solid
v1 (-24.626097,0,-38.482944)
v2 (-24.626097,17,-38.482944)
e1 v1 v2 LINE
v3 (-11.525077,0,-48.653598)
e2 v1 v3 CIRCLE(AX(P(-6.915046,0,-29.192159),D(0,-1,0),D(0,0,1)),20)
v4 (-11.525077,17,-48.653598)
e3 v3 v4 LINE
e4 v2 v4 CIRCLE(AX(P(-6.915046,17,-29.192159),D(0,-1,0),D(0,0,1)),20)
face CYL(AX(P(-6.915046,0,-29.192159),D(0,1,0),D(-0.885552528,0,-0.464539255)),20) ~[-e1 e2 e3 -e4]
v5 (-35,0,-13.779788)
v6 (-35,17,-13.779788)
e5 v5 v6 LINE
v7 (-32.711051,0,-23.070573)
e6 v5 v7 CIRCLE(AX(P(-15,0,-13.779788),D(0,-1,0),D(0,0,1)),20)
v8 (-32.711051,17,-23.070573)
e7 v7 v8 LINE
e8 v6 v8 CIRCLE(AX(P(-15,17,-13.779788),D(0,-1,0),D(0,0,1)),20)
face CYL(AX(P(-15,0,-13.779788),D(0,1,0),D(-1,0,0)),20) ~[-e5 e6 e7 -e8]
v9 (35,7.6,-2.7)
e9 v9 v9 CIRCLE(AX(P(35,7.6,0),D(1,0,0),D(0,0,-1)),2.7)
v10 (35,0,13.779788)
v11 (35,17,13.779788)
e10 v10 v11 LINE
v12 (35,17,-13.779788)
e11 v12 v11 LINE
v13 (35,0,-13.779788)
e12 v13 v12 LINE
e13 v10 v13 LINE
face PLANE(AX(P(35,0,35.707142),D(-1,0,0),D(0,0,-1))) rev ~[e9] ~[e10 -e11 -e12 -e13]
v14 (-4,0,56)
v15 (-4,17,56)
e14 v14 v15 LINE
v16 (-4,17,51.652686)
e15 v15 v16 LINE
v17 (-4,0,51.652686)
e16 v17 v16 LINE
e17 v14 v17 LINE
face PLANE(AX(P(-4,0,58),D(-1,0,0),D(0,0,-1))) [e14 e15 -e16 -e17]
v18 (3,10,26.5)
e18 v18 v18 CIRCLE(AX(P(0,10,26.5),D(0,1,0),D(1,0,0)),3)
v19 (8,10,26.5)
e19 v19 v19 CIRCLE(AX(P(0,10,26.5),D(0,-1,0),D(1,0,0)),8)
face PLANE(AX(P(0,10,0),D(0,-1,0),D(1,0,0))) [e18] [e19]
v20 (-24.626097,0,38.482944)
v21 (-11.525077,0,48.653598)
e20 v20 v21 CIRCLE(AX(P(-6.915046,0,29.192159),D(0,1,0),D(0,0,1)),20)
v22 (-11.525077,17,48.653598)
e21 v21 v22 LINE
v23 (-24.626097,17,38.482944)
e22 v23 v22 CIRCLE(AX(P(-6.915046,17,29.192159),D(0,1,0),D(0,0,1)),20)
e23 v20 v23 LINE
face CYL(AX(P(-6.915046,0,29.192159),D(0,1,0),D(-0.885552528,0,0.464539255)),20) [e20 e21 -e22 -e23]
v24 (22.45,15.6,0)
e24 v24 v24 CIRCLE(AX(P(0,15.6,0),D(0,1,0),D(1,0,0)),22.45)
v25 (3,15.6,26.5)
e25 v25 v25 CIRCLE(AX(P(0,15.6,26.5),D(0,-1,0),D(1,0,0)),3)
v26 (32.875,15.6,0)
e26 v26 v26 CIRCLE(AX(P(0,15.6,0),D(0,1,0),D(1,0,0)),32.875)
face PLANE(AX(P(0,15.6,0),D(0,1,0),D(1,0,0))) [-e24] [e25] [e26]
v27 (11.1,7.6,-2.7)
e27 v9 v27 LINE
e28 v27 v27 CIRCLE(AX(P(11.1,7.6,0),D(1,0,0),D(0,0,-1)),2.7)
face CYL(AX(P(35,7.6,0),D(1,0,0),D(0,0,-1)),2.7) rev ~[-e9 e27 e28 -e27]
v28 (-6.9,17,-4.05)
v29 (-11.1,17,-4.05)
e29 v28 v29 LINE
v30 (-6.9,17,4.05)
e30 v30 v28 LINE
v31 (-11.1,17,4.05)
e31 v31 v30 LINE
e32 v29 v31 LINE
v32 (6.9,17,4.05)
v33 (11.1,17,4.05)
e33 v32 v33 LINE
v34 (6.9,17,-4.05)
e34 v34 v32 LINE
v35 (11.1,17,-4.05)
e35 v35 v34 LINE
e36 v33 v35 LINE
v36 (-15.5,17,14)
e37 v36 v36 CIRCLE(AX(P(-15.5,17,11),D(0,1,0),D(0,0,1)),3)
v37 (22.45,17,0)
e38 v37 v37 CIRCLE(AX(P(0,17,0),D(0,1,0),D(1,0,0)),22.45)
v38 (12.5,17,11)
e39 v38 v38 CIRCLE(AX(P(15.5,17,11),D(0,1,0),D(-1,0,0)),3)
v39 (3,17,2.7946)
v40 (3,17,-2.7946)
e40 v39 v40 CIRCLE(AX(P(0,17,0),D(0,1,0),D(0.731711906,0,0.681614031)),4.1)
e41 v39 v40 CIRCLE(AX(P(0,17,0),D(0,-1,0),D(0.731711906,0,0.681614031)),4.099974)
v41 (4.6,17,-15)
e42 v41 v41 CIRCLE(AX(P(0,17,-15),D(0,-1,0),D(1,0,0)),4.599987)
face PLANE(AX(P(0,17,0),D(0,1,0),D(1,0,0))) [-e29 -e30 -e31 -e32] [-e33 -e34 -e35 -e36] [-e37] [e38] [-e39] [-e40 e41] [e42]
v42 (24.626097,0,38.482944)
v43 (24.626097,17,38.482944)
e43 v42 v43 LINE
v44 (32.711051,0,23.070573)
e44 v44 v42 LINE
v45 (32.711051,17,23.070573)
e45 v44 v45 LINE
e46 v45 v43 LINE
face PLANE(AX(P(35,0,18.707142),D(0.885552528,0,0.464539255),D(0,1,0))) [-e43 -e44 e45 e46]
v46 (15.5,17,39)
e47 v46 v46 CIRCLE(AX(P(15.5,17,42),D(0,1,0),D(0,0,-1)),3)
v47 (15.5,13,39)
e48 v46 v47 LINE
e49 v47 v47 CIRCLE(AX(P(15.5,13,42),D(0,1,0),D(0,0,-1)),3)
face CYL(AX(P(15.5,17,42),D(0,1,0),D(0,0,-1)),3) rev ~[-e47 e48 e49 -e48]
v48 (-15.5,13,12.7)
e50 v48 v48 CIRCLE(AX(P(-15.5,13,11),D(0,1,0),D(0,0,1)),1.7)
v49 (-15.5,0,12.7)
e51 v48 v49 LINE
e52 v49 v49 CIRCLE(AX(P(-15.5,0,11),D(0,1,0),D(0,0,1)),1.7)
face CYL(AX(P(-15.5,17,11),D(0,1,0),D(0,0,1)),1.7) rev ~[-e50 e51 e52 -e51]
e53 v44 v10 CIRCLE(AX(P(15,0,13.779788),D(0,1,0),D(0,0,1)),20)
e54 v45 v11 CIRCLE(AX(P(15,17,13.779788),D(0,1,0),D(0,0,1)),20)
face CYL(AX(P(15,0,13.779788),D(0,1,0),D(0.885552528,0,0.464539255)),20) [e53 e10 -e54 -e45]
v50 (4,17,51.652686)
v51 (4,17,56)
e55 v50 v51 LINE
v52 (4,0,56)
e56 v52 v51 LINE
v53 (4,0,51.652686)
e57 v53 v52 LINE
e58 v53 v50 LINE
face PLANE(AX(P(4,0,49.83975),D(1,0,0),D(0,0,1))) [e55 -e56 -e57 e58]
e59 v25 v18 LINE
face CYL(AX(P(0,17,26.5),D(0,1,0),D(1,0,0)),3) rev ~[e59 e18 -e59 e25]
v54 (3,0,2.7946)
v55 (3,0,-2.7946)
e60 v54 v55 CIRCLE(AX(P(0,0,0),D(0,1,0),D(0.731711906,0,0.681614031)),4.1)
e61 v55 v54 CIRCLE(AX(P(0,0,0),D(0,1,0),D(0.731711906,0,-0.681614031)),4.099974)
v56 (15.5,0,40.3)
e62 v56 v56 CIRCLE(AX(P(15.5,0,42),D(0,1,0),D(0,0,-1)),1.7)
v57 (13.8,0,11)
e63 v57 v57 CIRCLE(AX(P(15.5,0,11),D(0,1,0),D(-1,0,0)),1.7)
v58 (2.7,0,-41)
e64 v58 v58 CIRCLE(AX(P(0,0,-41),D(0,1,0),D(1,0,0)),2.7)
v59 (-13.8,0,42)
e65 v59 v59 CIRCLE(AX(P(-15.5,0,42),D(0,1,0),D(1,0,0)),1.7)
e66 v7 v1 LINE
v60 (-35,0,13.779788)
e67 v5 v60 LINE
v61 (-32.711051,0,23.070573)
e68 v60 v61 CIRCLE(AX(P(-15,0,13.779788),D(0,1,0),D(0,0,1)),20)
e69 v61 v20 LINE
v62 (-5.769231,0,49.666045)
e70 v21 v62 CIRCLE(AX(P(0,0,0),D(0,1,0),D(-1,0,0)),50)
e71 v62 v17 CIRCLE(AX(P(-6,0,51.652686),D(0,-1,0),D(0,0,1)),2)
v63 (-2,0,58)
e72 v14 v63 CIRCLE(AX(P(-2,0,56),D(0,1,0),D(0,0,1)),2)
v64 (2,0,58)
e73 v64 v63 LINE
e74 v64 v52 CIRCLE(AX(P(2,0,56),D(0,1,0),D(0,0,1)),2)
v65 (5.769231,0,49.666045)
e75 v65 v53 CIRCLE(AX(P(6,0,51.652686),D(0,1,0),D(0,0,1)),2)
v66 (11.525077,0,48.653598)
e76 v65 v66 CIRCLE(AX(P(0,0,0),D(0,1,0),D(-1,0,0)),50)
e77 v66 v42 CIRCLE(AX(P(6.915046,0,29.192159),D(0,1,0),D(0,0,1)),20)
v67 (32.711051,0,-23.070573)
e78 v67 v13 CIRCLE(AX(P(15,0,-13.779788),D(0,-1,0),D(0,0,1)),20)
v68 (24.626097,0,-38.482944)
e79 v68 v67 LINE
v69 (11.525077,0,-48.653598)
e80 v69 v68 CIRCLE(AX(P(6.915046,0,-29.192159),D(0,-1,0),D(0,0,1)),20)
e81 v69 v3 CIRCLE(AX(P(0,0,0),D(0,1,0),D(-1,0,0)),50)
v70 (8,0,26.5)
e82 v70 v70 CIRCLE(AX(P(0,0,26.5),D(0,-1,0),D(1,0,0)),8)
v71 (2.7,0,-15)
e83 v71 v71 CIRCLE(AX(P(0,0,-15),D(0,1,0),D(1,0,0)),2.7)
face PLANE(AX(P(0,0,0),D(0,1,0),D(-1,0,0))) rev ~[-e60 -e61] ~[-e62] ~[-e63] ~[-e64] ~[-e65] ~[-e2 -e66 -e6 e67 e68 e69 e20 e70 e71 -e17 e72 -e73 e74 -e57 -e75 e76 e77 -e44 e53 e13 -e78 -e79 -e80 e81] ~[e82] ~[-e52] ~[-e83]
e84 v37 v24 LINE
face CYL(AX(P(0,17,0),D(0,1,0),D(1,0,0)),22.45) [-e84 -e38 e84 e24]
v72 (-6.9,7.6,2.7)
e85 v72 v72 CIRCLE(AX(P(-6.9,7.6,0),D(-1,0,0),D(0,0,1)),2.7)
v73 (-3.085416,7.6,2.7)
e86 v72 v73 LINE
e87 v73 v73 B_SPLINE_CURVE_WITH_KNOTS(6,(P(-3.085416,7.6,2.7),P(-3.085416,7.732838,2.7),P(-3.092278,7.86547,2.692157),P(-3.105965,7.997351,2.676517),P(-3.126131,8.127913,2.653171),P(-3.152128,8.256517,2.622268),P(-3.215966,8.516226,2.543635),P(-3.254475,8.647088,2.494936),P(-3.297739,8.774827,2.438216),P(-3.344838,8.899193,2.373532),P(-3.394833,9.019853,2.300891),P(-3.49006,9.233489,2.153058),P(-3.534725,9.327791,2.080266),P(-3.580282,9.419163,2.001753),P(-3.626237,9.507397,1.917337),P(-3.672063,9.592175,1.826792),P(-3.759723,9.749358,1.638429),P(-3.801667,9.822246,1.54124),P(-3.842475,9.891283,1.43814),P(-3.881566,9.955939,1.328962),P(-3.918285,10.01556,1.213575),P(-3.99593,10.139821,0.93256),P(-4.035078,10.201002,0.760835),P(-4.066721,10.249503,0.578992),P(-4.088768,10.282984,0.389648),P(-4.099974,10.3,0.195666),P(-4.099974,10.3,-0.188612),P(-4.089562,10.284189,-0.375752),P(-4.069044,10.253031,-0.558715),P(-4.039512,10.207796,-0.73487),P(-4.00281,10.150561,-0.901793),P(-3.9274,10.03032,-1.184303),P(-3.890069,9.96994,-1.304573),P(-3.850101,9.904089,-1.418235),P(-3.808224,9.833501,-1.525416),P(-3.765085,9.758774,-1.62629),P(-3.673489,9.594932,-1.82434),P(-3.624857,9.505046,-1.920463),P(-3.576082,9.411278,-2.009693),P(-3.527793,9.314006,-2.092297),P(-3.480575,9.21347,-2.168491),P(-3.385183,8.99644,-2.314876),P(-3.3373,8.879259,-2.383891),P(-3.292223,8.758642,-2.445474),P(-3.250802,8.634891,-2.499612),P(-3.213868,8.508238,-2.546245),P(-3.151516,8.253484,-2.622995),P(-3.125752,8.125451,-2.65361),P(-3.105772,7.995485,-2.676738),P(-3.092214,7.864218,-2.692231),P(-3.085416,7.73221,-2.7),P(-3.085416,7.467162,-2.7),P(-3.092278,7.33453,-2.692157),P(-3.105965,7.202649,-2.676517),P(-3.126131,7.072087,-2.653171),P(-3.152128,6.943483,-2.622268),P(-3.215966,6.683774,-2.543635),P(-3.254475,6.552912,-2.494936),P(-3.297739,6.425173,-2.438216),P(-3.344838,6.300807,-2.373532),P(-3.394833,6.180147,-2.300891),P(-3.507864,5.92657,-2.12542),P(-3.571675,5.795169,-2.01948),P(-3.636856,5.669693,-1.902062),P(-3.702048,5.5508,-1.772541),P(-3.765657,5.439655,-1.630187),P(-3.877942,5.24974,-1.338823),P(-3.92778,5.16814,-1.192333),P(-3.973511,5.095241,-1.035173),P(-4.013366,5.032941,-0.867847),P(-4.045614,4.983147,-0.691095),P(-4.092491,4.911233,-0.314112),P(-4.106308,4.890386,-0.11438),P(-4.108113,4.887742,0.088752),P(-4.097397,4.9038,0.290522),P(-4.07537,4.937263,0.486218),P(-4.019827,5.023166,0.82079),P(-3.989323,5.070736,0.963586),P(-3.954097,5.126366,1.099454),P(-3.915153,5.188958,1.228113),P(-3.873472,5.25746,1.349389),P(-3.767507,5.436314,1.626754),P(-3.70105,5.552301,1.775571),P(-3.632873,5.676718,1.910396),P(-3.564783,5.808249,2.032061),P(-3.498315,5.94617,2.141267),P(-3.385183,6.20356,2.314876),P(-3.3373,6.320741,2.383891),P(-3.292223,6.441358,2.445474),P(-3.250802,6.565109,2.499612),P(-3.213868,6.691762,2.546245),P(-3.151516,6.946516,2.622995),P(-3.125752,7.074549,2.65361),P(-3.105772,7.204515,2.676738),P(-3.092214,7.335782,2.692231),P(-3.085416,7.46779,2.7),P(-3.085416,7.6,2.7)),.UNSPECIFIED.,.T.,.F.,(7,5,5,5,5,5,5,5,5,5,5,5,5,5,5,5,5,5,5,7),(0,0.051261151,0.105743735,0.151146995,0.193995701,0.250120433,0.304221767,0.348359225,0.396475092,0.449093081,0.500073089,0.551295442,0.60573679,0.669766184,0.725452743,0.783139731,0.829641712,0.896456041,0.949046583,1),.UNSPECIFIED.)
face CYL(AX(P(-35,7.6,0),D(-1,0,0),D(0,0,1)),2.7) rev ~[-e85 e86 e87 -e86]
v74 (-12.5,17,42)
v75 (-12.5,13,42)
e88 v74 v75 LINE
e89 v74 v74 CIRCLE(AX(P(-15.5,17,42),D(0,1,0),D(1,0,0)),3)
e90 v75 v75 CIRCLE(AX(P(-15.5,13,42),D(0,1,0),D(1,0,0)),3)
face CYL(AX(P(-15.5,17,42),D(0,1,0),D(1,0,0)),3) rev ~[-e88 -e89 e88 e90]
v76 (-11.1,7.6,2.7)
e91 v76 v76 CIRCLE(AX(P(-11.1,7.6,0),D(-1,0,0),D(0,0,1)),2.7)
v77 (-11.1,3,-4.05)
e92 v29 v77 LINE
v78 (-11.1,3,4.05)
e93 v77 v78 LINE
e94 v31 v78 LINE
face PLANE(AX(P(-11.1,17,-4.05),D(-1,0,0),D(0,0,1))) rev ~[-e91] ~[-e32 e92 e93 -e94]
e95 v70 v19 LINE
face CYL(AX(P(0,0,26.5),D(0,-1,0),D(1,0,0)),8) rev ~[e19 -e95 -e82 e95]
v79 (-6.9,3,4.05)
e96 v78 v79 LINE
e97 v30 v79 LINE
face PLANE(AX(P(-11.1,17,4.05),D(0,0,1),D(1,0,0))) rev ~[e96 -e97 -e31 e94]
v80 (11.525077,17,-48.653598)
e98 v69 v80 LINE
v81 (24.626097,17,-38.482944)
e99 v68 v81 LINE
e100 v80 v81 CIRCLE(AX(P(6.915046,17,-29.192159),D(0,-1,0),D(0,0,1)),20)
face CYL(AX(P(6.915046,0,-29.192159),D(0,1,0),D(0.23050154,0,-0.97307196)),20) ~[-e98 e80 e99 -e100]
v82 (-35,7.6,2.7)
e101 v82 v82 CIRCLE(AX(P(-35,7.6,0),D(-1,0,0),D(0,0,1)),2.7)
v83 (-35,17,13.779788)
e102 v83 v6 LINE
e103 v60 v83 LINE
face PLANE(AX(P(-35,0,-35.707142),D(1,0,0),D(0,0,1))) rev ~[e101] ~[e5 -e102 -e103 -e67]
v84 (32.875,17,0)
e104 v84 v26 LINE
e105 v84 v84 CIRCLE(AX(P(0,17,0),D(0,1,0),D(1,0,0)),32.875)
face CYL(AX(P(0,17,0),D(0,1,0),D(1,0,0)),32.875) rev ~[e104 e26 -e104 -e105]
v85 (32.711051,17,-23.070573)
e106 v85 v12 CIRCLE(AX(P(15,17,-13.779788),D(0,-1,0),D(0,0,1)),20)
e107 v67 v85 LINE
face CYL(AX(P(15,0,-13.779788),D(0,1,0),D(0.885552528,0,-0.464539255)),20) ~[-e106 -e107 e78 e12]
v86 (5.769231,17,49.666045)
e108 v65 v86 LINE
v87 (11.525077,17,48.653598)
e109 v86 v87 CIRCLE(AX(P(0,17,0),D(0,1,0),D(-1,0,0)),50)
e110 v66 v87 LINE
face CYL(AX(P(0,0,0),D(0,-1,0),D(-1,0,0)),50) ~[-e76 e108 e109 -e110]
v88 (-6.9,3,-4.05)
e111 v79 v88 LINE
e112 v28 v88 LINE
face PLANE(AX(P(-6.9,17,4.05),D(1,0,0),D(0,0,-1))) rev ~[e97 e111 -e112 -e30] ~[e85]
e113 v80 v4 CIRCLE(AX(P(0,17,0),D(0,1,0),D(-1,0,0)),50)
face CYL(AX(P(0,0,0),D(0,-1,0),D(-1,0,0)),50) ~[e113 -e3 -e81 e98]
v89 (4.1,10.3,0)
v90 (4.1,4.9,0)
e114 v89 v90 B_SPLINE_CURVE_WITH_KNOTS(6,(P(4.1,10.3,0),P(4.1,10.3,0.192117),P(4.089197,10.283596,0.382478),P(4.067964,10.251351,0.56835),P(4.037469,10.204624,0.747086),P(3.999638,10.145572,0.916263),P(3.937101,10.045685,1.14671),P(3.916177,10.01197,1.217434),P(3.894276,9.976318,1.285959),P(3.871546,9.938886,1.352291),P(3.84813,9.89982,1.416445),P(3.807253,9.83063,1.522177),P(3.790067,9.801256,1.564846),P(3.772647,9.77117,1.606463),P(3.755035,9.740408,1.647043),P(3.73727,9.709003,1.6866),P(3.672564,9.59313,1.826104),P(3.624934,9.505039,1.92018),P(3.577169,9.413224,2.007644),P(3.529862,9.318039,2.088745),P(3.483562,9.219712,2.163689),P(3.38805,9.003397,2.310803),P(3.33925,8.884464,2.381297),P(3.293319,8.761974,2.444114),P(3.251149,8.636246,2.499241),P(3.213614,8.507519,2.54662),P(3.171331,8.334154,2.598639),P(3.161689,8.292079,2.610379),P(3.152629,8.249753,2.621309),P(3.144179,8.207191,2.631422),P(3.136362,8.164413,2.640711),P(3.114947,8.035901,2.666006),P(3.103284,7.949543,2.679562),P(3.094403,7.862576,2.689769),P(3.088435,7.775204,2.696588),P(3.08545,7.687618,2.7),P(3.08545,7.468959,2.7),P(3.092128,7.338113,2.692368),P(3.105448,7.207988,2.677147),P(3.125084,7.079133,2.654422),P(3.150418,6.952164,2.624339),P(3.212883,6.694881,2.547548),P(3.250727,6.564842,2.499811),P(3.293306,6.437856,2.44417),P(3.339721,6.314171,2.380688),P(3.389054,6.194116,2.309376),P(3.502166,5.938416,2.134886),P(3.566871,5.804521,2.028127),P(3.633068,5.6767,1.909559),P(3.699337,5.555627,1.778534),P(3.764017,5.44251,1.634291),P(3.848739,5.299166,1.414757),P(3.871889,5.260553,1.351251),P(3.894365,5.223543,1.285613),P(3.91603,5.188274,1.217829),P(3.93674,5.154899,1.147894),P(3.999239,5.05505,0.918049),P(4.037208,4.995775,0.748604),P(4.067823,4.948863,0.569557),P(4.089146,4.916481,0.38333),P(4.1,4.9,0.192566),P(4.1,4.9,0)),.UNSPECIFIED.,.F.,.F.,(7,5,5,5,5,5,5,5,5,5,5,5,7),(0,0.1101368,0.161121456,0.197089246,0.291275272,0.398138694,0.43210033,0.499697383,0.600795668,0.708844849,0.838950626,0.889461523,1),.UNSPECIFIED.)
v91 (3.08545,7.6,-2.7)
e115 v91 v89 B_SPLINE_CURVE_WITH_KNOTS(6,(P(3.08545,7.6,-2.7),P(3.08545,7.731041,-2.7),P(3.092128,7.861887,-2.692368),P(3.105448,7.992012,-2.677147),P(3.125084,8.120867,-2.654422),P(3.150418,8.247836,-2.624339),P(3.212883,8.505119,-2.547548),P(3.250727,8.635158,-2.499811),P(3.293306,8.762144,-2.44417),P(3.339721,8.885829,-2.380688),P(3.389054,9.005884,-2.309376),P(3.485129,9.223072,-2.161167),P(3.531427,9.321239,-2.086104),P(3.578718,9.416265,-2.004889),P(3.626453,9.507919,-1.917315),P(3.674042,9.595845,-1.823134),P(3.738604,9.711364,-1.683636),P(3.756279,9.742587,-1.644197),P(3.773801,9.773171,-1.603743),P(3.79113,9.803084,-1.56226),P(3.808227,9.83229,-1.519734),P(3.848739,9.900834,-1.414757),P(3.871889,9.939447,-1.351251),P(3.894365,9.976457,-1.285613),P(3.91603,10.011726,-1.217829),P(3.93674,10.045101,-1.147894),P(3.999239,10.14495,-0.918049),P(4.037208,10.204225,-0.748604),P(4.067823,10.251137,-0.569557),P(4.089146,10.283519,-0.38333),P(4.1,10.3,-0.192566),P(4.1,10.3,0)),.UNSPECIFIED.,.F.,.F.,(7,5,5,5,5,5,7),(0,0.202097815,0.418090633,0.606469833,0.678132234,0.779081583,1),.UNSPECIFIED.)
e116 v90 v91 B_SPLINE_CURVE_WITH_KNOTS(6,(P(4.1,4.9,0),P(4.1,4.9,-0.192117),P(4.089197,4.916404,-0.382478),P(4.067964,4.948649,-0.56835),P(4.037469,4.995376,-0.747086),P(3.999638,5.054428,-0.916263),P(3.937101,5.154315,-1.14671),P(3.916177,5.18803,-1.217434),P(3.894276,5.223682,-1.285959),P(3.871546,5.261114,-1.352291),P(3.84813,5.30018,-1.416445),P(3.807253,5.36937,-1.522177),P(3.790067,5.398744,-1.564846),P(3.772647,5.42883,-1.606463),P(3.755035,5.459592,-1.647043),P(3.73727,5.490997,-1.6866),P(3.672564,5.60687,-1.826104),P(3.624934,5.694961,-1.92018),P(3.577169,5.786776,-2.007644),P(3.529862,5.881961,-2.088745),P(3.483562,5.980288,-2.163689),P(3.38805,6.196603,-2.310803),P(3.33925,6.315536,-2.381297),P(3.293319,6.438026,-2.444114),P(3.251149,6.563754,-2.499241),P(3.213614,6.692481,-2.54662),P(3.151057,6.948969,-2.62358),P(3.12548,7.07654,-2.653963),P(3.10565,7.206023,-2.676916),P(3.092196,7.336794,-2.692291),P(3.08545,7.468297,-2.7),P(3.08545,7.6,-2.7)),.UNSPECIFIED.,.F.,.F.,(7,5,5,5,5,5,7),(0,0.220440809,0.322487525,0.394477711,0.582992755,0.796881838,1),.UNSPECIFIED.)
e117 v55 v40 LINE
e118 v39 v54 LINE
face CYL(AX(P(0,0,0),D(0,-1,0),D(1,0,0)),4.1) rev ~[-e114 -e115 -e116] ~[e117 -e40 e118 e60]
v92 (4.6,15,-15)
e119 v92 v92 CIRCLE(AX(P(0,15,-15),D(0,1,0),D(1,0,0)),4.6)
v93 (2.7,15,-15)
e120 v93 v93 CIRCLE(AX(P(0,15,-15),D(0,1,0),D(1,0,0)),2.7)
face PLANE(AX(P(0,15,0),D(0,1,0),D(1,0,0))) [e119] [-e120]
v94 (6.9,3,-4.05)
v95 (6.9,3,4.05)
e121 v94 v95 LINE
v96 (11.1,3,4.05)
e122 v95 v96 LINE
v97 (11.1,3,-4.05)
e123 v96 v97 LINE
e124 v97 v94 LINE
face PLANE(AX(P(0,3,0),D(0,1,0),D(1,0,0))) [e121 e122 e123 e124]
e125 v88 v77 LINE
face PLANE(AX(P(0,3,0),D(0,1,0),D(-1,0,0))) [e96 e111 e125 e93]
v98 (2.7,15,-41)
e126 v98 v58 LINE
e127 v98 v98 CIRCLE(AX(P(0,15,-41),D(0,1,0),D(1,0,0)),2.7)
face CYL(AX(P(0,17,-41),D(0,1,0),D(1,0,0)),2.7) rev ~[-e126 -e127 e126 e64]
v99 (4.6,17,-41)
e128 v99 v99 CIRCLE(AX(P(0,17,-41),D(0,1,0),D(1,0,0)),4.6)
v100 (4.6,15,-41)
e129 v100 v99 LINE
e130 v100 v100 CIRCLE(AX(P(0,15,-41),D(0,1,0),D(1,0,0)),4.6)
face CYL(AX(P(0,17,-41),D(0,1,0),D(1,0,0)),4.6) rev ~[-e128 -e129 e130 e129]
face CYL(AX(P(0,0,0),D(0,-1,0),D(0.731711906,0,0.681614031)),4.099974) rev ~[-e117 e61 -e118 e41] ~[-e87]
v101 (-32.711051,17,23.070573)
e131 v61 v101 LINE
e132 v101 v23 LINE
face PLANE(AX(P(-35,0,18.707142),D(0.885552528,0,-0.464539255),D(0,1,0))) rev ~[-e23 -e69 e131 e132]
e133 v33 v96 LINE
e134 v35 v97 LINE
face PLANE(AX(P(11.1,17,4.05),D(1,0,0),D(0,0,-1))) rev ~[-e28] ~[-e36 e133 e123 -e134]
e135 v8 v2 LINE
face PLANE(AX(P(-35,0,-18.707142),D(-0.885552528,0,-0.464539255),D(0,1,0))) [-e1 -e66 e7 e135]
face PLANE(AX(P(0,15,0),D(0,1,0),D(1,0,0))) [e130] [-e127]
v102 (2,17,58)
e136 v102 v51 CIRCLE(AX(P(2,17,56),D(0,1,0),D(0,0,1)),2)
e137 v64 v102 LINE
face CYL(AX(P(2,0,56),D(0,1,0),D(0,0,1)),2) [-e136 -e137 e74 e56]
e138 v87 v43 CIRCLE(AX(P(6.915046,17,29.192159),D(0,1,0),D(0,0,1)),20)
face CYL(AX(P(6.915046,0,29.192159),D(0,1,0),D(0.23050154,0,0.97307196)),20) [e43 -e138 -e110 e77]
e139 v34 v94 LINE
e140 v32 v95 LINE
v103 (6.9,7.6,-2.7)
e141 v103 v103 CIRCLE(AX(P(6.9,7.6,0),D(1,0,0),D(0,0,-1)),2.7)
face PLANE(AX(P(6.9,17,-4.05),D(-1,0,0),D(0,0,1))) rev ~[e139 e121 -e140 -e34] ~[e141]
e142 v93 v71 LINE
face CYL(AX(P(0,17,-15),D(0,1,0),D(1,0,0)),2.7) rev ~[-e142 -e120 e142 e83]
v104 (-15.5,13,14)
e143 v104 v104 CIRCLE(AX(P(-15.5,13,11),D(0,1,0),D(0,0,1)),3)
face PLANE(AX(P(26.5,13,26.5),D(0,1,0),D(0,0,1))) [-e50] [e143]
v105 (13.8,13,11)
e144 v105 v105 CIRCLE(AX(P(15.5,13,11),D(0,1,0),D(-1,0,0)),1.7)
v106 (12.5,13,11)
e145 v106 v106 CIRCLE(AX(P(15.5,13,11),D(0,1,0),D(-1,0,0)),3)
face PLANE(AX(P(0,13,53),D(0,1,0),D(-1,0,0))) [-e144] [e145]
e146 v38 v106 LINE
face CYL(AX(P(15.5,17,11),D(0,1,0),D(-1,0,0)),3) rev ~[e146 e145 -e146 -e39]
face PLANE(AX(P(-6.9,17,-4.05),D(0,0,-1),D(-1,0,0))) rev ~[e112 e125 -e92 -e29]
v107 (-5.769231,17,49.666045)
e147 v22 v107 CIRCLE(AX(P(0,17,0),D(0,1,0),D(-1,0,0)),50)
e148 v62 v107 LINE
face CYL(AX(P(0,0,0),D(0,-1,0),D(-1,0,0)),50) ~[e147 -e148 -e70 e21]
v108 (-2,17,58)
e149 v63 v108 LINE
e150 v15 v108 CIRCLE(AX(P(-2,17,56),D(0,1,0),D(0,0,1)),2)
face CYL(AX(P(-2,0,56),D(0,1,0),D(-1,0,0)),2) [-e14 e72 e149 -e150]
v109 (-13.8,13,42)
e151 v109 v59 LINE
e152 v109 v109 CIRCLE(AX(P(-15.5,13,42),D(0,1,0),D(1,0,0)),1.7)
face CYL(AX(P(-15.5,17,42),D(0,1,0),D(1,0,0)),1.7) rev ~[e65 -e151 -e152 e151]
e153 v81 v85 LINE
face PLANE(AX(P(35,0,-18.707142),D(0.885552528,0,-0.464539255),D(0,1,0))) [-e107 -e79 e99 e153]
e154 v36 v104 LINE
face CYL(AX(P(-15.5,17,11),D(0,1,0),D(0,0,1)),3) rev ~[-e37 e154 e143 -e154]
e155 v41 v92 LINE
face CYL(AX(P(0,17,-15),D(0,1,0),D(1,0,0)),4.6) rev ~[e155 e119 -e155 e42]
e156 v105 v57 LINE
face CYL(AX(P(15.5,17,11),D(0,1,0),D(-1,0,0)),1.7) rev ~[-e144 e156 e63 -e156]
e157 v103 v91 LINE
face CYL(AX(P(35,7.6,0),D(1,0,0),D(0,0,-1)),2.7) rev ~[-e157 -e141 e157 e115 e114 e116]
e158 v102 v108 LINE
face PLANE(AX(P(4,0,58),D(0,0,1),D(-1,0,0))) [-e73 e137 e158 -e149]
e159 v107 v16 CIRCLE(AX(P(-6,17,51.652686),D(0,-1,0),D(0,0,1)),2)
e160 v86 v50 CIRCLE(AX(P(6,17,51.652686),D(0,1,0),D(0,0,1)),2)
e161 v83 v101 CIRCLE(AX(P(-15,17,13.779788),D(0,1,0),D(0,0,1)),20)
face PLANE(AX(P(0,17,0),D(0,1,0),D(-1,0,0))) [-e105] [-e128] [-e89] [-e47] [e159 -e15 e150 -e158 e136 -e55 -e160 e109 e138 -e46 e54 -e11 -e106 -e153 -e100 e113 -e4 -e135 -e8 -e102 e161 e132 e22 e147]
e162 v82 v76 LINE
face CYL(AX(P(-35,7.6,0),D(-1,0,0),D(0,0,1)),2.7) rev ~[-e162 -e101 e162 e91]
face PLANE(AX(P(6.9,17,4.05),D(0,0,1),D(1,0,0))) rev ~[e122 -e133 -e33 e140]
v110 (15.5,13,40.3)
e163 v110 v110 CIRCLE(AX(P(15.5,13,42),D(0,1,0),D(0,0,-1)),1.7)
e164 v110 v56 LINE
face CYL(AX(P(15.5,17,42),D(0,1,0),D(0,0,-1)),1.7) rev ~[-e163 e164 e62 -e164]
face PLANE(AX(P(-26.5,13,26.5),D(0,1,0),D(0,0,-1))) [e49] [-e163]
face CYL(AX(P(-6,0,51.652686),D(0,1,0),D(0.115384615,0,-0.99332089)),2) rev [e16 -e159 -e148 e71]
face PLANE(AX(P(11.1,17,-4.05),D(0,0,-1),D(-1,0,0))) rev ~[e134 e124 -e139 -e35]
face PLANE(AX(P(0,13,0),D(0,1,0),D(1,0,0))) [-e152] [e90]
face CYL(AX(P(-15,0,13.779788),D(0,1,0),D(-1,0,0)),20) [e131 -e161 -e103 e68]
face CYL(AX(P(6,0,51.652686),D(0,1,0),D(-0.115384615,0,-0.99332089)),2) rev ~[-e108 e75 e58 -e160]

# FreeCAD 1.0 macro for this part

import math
import FreeCAD as App
import Part
import Sketcher
from FreeCAD import Vector
Q = App.Units.Quantity


def edges_at(feature, points):
    """Names of the edges that pass closest to the given points."""
    edges = feature.Shape.Edges
    near = lambda p: min(range(len(edges)), key=lambda i: edges[i].distToShape(Part.Vertex(*p))[0])
    return sorted({f"Edge{near(p) + 1}" for p in points})


def add_polygon(sketch, points):
    """Adds a closed chain of lines whose ends are joined by coincident constraints."""
    first, n = sketch.GeometryCount, len(points)
    for a, b in zip(points, points[1:] + points[:1]):
        sketch.addGeometry(Part.LineSegment(App.Vector(*a, 0), App.Vector(*b, 0)), False)
    for i in range(n):
        sketch.addConstraint(Sketcher.Constraint("Coincident", first + i, 2, first + (i + 1) % n, 1))

doc = App.newDocument("Part")
body = doc.addObject("PartDesign::Body", "Body")

# Sketch on XZ plane
sketch1 = doc.addObject("Sketcher::SketchObject", "Sketch")
body.addObject(sketch1)
sketch1.AttachmentSupport = (doc.XZ_Plane, [""])
sketch1.MapMode = "FlatFace"
sketch1.addGeometry(Part.Circle(Vector(0, 0, 0), Vector(0, 0, 1), 50), False)
sketch1.addConstraint([
    Sketcher.Constraint("Coincident", 0, 3, -1, 1),
    Sketcher.Constraint("Diameter", 0, Q("100 mm")),
])
pad1 = doc.addObject("PartDesign::Pad", "Pad")
body.addObject(pad1)
pad1.Profile = sketch1
pad1.Length = 17
pad1.Reversed = True

# Sketch on XZ plane
sketch2 = doc.addObject("Sketcher::SketchObject", "Sketch001")
body.addObject(sketch2)
sketch2.AttachmentSupport = (doc.XZ_Plane, [""])
sketch2.MapMode = "FlatFace"
sketch2.AttachmentOffset = App.Placement(Vector(0, 0, -17), App.Rotation())
sketch2.addGeometry([
    Part.Circle(Vector(0, 0, 0), Vector(0, 0, 1), 33),
    Part.Circle(Vector(0, 0, 0), Vector(0, 0, 1), 22),
], False)
sketch2.addConstraint([
    Sketcher.Constraint("Coincident", 0, 3, -1, 1),
    Sketcher.Constraint("Coincident", 1, 3, -1, 1),
    Sketcher.Constraint("Diameter", 1, Q("44.9 mm")),
    Sketcher.Constraint("Diameter", 0, Q("65.75 mm")),
])
pocket1 = doc.addObject("PartDesign::Pocket", "Pocket")
body.addObject(pocket1)
pocket1.Profile = sketch2
pocket1.Length = 1.4
pocket1.Reversed = True

# Sketch on XZ plane
sketch3 = doc.addObject("Sketcher::SketchObject", "Sketch002")
body.addObject(sketch3)
sketch3.AttachmentSupport = (doc.XZ_Plane, [""])
sketch3.MapMode = "FlatFace"
sketch3.AttachmentOffset = App.Placement(Vector(0, 0, -17), App.Rotation())
sketch3.addGeometry(Part.Circle(Vector(0, 0, 0), Vector(0, 0, 1), 22), False)
sketch3.addConstraint([
    Sketcher.Constraint("Coincident", 0, 3, -1, 1),
    Sketcher.Constraint("Diameter", 0, Q("44.9 mm")),
])
pad2 = doc.addObject("PartDesign::Pad", "Pad001")
body.addObject(pad2)
pad2.Profile = sketch3
pad2.Length = 1
pad2.Reversed = True

# Sketch on XZ plane
sketch4 = doc.addObject("Sketcher::SketchObject", "Sketch003")
body.addObject(sketch4)
sketch4.AttachmentSupport = (doc.XZ_Plane, [""])
sketch4.MapMode = "FlatFace"
sketch4.AttachmentOffset = App.Placement(Vector(0, 0, -18), App.Rotation())
sketch4.addGeometry([
    Part.LineSegment(Vector(2.9, 2.8, 0), Vector(2.9, -2.8, 0)),
    Part.ArcOfCircle(Part.Circle(Vector(0, 0, 0), Vector(0, 0, 1), 4), math.radians(44), math.radians(316)),
], False)
sketch4.addConstraint([
    Sketcher.Constraint("Coincident", 0, 1, 1, 1),
    Sketcher.Constraint("Coincident", 1, 2, 0, 2),
    Sketcher.Constraint("Vertical", 0),
    Sketcher.Constraint("Coincident", 1, 3, -1, 1),
    Sketcher.Constraint("Radius", 1, Q("4 mm")),
    Sketcher.Constraint("DistanceX", -1, 1, 0, 1, Q("2.9 mm")),
])
pocket2 = doc.addObject("PartDesign::Pocket", "Pocket001")
body.addObject(pocket2)
pocket2.Profile = sketch4
pocket2.Type = "ThroughAll"
pocket2.Reversed = True

# Sketch on XZ plane
sketch5 = doc.addObject("Sketcher::SketchObject", "Sketch004")
body.addObject(sketch5)
sketch5.AttachmentSupport = (doc.XZ_Plane, [""])
sketch5.MapMode = "FlatFace"
sketch5.AttachmentOffset = App.Placement(Vector(0, 0, -18), App.Rotation())
sketch5.addGeometry([
    Part.LineSegment(Vector(3, 2.8, 0), Vector(3, -2.8, 0)),
    Part.ArcOfCircle(Part.Circle(Vector(0, 0, 0), Vector(0, 0, 1), 4.1), math.radians(43), math.radians(317)),
], False)
sketch5.addConstraint([
    Sketcher.Constraint("Coincident", 0, 1, 1, 1),
    Sketcher.Constraint("Coincident", 1, 2, 0, 2),
    Sketcher.Constraint("Vertical", 0),
    Sketcher.Constraint("Coincident", 1, 3, -1, 1),
    Sketcher.Constraint("Radius", 1, Q("4.1 mm")),
    Sketcher.Constraint("DistanceX", -1, 1, 0, 1, Q("3 mm")),
])
pocket3 = doc.addObject("PartDesign::Pocket", "Pocket002")
body.addObject(pocket3)
pocket3.Profile = sketch5
pocket3.Type = "ThroughAll"
pocket3.Reversed = True

# Sketch on XZ plane
sketch6 = doc.addObject("Sketcher::SketchObject", "Sketch005")
body.addObject(sketch6)
sketch6.AttachmentSupport = (doc.XZ_Plane, [""])
sketch6.MapMode = "FlatFace"
sketch6.addGeometry([
    Part.LineSegment(Vector(-35, -36, 0), Vector(-35, 36, 0)),
    Part.ArcOfCircle(Part.Circle(Vector(0, 0, 0), Vector(0, 0, 1), 50), math.radians(134), math.radians(226)),
    Part.ArcOfCircle(Part.Circle(Vector(0, 0, 0), Vector(0, 0, 1), 50), math.radians(-46), math.radians(46)),
    Part.LineSegment(Vector(35, 36, 0), Vector(35, -36, 0)),
], False)
sketch6.addConstraint([
    Sketcher.Constraint("Coincident", 0, 1, 1, 2),
    Sketcher.Constraint("Coincident", 1, 1, 0, 2),
    Sketcher.Constraint("Coincident", 2, 1, 3, 2),
    Sketcher.Constraint("Coincident", 3, 1, 2, 2),
    Sketcher.Constraint("Vertical", 0),
    Sketcher.Constraint("Vertical", 3),
    Sketcher.Constraint("Coincident", 1, 3, -1, 1),
    Sketcher.Constraint("Coincident", 2, 3, -1, 1),
    Sketcher.Constraint("Equal", 1, 2),
    Sketcher.Constraint("Horizontal", 0, 1, 2, 1),
    Sketcher.Constraint("Radius", 1, Q("50 mm")),
    Sketcher.Constraint("DistanceX", 0, 1, 2, 1, Q("70 mm")),
])
pocket4 = doc.addObject("PartDesign::Pocket", "Pocket003")
body.addObject(pocket4)
pocket4.Profile = sketch6
pocket4.Type = "ThroughAll"
doc.recompute()

chamfer = doc.addObject("PartDesign::Chamfer", "Chamfer")
body.addObject(chamfer)
chamfer.Base = (pocket4, edges_at(pocket4, [
    (-35, 8.5, 35.707),
    (-35, 8.5, -35.707),
    (35, 8.5, -35.707),
    (35, 8.5, 35.707),
]))
chamfer.Size = 17
doc.recompute()

fillet = doc.addObject("PartDesign::Fillet", "Fillet")
body.addObject(fillet)
fillet.Base = (chamfer, edges_at(chamfer, [
    (-21.013, 8.5, -45.37),
    (-21.013, 8.5, 45.37),
    (-35, 8.5, -18.707),
    (-35, 8.5, 18.707),
    (21.013, 8.5, -45.37),
    (21.013, 8.5, 45.37),
    (35, 8.5, -18.707),
    (35, 8.5, 18.707),
]))
fillet.Radius = 20

# Sketch on XZ plane
sketch7 = doc.addObject("Sketcher::SketchObject", "Sketch006")
body.addObject(sketch7)
sketch7.AttachmentSupport = (doc.XZ_Plane, [""])
sketch7.MapMode = "FlatFace"
sketch7.AttachmentOffset = App.Placement(Vector(0, 0, -17), App.Rotation())
sketch7.addGeometry([
    Part.Circle(Vector(0, -41, 0), Vector(0, 0, 1), 2.7),
    Part.Circle(Vector(0, -15, 0), Vector(0, 0, 1), 2.7),
    Part.Circle(Vector(0, 15, 0), Vector(0, 0, 1), 2.7),
], False)
sketch7.addConstraint([
    Sketcher.Constraint("Equal", 0, 1),
    Sketcher.Constraint("Equal", 1, 2),
    Sketcher.Constraint("Symmetric", 1, 3, 2, 3, -1, 1),
    Sketcher.Constraint("PointOnObject", 0, 3, -2),
    Sketcher.Constraint("PointOnObject", 1, 3, -2),
    Sketcher.Constraint("Diameter", 0, Q("5.4 mm")),
    Sketcher.Constraint("DistanceY", 1, 3, -1, 1, Q("15 mm")),
    Sketcher.Constraint("DistanceY", 0, 3, 1, 3, Q("26 mm")),
])
pocket5 = doc.addObject("PartDesign::Pocket", "Pocket004")
body.addObject(pocket5)
pocket5.Profile = sketch7
pocket5.Type = "ThroughAll"
pocket5.Midplane = True

# Sketch on XZ plane
sketch8 = doc.addObject("Sketcher::SketchObject", "Sketch007")
body.addObject(sketch8)
sketch8.AttachmentSupport = (doc.XZ_Plane, [""])
sketch8.MapMode = "FlatFace"
sketch8.AttachmentOffset = App.Placement(Vector(0, 0, -17), App.Rotation())
sketch8.addGeometry([
    Part.Circle(Vector(0, -41, 0), Vector(0, 0, 1), 4.6),
    Part.Circle(Vector(0, -15, 0), Vector(0, 0, 1), 4.6),
    Part.Circle(Vector(0, -15, 0), Vector(0, 0, 1), 2.7),
    Part.Circle(Vector(0, 15, 0), Vector(0, 0, 1), 4.6),
], False)
sketch8.addConstraint([
    Sketcher.Constraint("Coincident", 2, 3, 1, 3),
    Sketcher.Constraint("Equal", 0, 1),
    Sketcher.Constraint("Equal", 1, 3),
    Sketcher.Constraint("Symmetric", 1, 3, 3, 3, -1, 1),
    Sketcher.Constraint("PointOnObject", 0, 3, -2),
    Sketcher.Constraint("PointOnObject", 1, 3, -2),
    Sketcher.Constraint("Diameter", 0, Q("9.2 mm")),
    Sketcher.Constraint("Diameter", 2, Q("5.4 mm")),
    Sketcher.Constraint("DistanceY", 0, 3, -1, 1, Q("41 mm")),
    Sketcher.Constraint("DistanceY", 1, 3, -1, 1, Q("15 mm")),
])
pocket6 = doc.addObject("PartDesign::Pocket", "Pocket005")
body.addObject(pocket6)
pocket6.Profile = sketch8
pocket6.Type = "TwoLengths"
pocket6.Length = 2
pocket6.Length2 = 2

# Sketch on XZ plane
sketch9 = doc.addObject("Sketcher::SketchObject", "Sketch008")
body.addObject(sketch9)
sketch9.AttachmentSupport = (doc.XZ_Plane, [""])
sketch9.MapMode = "FlatFace"
sketch9.AttachmentOffset = App.Placement(Vector(0, 0, -18), App.Rotation())
sketch9.addGeometry(Part.Circle(Vector(0, 0, 0), Vector(0, 0, 1), 9), False)
sketch9.addConstraint([
    Sketcher.Constraint("Coincident", 0, 3, -1, 1),
    Sketcher.Constraint("Diameter", 0, Q("18 mm")),
])
pad3 = doc.addObject("PartDesign::Pad", "Pad002")
body.addObject(pad3)
pad3.Profile = sketch9
pad3.Length = 2.5
pad3.Reversed = True

# Sketch on XZ plane
sketch10 = doc.addObject("Sketcher::SketchObject", "Sketch009")
body.addObject(sketch10)
sketch10.AttachmentSupport = (doc.XZ_Plane, [""])
sketch10.MapMode = "FlatFace"
sketch10.addGeometry([
    Part.ArcOfCircle(Part.Circle(Vector(0, 0, 0), Vector(0, 0, 1), 4.1), math.radians(43), math.radians(317)),
    Part.LineSegment(Vector(3, -2.8, 0), Vector(3, 2.8, 0)),
], False)
sketch10.addConstraint([
    Sketcher.Constraint("Coincident", 0, 1, 1, 2),
    Sketcher.Constraint("Coincident", 1, 1, 0, 2),
    Sketcher.Constraint("Vertical", 1),
    Sketcher.Constraint("Coincident", 0, 3, -1, 1),
    Sketcher.Constraint("Radius", 0, Q("4.1 mm")),
    Sketcher.Constraint("DistanceX", -1, 1, 0, 1, Q("3 mm")),
])
pocket7 = doc.addObject("PartDesign::Pocket", "Pocket006")
body.addObject(pocket7)
pocket7.Profile = sketch10
pocket7.Type = "ThroughAll"
doc.recompute()

fillet2 = doc.addObject("PartDesign::Fillet", "Fillet001")
body.addObject(fillet2)
fillet2.Base = (pocket7, edges_at(pocket7, [(-9, 18, 0)]))
fillet2.Radius = 2

# Sketch on XZ plane
sketch11 = doc.addObject("Sketcher::SketchObject", "Sketch010")
body.addObject(sketch11)
sketch11.AttachmentSupport = (doc.XZ_Plane, [""])
sketch11.MapMode = "FlatFace"
sketch11.AttachmentOffset = App.Placement(Vector(0, 0, -20.5), App.Rotation())
sketch11.addGeometry(Part.Circle(Vector(0, 0, 0), Vector(0, 0, 1), 4.2), False)
sketch11.addConstraint([
    Sketcher.Constraint("Coincident", 0, 3, -1, 1),
    Sketcher.Constraint("Diameter", 0, Q("8.3 mm")),
])
pocket8 = doc.addObject("PartDesign::Pocket", "Pocket007")
body.addObject(pocket8)
pocket8.Profile = sketch11
pocket8.Length = 2
pocket8.Reversed = True

# Sketch on XZ plane
sketch12 = doc.addObject("Sketcher::SketchObject", "Sketch011")
body.addObject(sketch12)
sketch12.AttachmentSupport = (doc.XZ_Plane, [""])
sketch12.MapMode = "FlatFace"
sketch12.AttachmentOffset = App.Placement(Vector(0, 0, -18), App.Rotation())
sketch12.addGeometry([
    Part.Circle(Vector(0, 0, 0), Vector(0, 0, 1), 22.4),  # 0
    Part.ArcOfCircle(Part.Circle(Vector(0, 0, 0), Vector(0, 0, 1), 11), math.radians(-80), math.radians(80)),  # 1
    Part.ArcOfCircle(Part.Circle(Vector(0, 15, 0), Vector(0, 0, 1), 4.6), math.radians(-65), math.radians(245)),  # 2
    Part.ArcOfCircle(Part.Circle(Vector(0, 0, 0), Vector(0, 0, 1), 11), math.radians(100), math.radians(260)),  # 3
    Part.ArcOfCircle(Part.Circle(Vector(0, -15, 0), Vector(0, 0, 1), 4.6), math.radians(115), math.radians(425)),  # 4
], False)
sketch12.addConstraint([
    Sketcher.Constraint("Coincident", 1, 2, 2, 1),
    Sketcher.Constraint("Coincident", 2, 2, 3, 1),
    Sketcher.Constraint("Coincident", 3, 2, 4, 1),
    Sketcher.Constraint("Coincident", 4, 2, 1, 1),
    Sketcher.Constraint("Coincident", 0, 3, -1, 1),
    Sketcher.Constraint("Coincident", 1, 3, -1, 1),
    Sketcher.Constraint("Coincident", 3, 3, -1, 1),
    Sketcher.Constraint("Equal", 1, 3),
    Sketcher.Constraint("Equal", 2, 4),
    Sketcher.Constraint("Symmetric", 2, 3, 4, 3, -1, 1),
    Sketcher.Constraint("PointOnObject", 2, 3, -2),
    Sketcher.Constraint("Radius", 1, Q("11 mm")),
    Sketcher.Constraint("Diameter", 0, Q("44.9 mm")),
    Sketcher.Constraint("Radius", 2, Q("4.6 mm")),
    Sketcher.Constraint("DistanceY", -1, 1, 2, 3, Q("15 mm")),
])
pocket9 = doc.addObject("PartDesign::Pocket", "Pocket008")
body.addObject(pocket9)
pocket9.Profile = sketch12
pocket9.Length = 1
pocket9.Reversed = True

# Sketch on XZ plane
sketch13 = doc.addObject("Sketcher::SketchObject", "Sketch012")
body.addObject(sketch13)
sketch13.AttachmentSupport = (doc.XZ_Plane, [""])
sketch13.MapMode = "FlatFace"
sketch13.AttachmentOffset = App.Placement(Vector(0, 0, -17), App.Rotation())
sketch13.addGeometry(Part.Circle(Vector(0, 0, 0), Vector(0, 0, 1), 13), False)
sketch13.addConstraint([
    Sketcher.Constraint("Coincident", 0, 3, -1, 1),
    Sketcher.Constraint("Diameter", 0, Q("26.9356 mm")),
])
pocket10 = doc.addObject("PartDesign::Pocket", "Pocket009")
body.addObject(pocket10)
pocket10.Profile = sketch13
pocket10.Length = 17.5

# Sketch on XZ plane
sketch14 = doc.addObject("Sketcher::SketchObject", "Sketch013")
body.addObject(sketch14)
sketch14.AttachmentSupport = (doc.XZ_Plane, [""])
sketch14.MapMode = "FlatFace"
sketch14.AttachmentOffset = App.Placement(Vector(0, 0, -17), App.Rotation())
sketch14.addGeometry(Part.Circle(Vector(0, 0, 0), Vector(0, 0, 1), 4.1), False)
sketch14.addConstraint([
    Sketcher.Constraint("Coincident", 0, 3, -1, 1),
    Sketcher.Constraint("Diameter", 0, Q("8.2 mm")),
])
pocket11 = doc.addObject("PartDesign::Pocket", "Pocket010")
body.addObject(pocket11)
pocket11.Profile = sketch14
pocket11.Length = 3
pocket11.Reversed = True

# Sketch on XZ plane
sketch15 = doc.addObject("Sketcher::SketchObject", "Sketch014")
body.addObject(sketch15)
sketch15.AttachmentSupport = (doc.XZ_Plane, [""])
sketch15.MapMode = "FlatFace"
sketch15.AttachmentOffset = App.Placement(Vector(0, 0, -17), App.Rotation())
sketch15.addGeometry(Part.Circle(Vector(-15.5, 42, 0), Vector(0, 0, 1), 1.7), False)
sketch15.addConstraint([
    Sketcher.Constraint("Diameter", 0, Q("3.4 mm")),
    Sketcher.Constraint("DistanceY", -1, 1, 0, 3, Q("42 mm")),
    Sketcher.Constraint("DistanceX", 0, 3, -1, 1, Q("15.5 mm")),
])
pocket12 = doc.addObject("PartDesign::Pocket", "Pocket011")
body.addObject(pocket12)
pocket12.Profile = sketch15
pocket12.Type = "ThroughAll"
pocket12.Reversed = True

# Sketch on XZ plane
sketch16 = doc.addObject("Sketcher::SketchObject", "Sketch015")
body.addObject(sketch16)
sketch16.AttachmentSupport = (doc.XZ_Plane, [""])
sketch16.MapMode = "FlatFace"
sketch16.AttachmentOffset = App.Placement(Vector(0, 0, -17), App.Rotation())
add_polygon(sketch16, [(11.1, 4), (11.1, -4), (6.9, -4), (6.9, 4)])  # lines 0-3
sketch16.addConstraint([
    Sketcher.Constraint("Vertical", 0),
    Sketcher.Constraint("Horizontal", 1),
    Sketcher.Constraint("Vertical", 2),
    Sketcher.Constraint("Horizontal", 3),
    Sketcher.Constraint("DistanceX", 1, 2, 1, 1, Q("4.2 mm")),
    Sketcher.Constraint("DistanceY", 0, 2, 0, 1, Q("8.1 mm")),
    Sketcher.Constraint("DistanceX", -1, 1, 0, 2, Q("11.1 mm")),
    Sketcher.Constraint("DistanceY", 0, 2, -1, 1, Q("4.05 mm")),
])
pocket13 = doc.addObject("PartDesign::Pocket", "Pocket012")
body.addObject(pocket13)
pocket13.Profile = sketch16
pocket13.Length = 14
pocket13.Reversed = True

# Sketch on YZ plane
sketch17 = doc.addObject("Sketcher::SketchObject", "Sketch016")
body.addObject(sketch17)
sketch17.AttachmentSupport = (doc.YZ_Plane, [""])
sketch17.MapMode = "FlatFace"
sketch17.AttachmentOffset = App.Placement(Vector(0, 0, 35), App.Rotation())
sketch17.addGeometry(Part.Circle(Vector(7.6, 0, 0), Vector(0, 0, 1), 2.7), False)
sketch17.addConstraint([
    Sketcher.Constraint("PointOnObject", 0, 3, -1),
    Sketcher.Constraint("Diameter", 0, Q("5.4 mm")),
    Sketcher.Constraint("DistanceX", -1, 1, 0, 3, Q("7.6 mm")),
])
pocket14 = doc.addObject("PartDesign::Pocket", "Pocket013")
body.addObject(pocket14)
pocket14.Profile = sketch17
pocket14.Length = 35.25

# Sketch on XZ plane
sketch18 = doc.addObject("Sketcher::SketchObject", "Sketch017")
body.addObject(sketch18)
sketch18.AttachmentSupport = (doc.XZ_Plane, [""])
sketch18.MapMode = "FlatFace"
sketch18.AttachmentOffset = App.Placement(Vector(0, 0, -17), App.Rotation())
sketch18.addGeometry(Part.Circle(Vector(0, 26.5, 0), Vector(0, 0, 1), 3), False)
sketch18.addConstraint([
    Sketcher.Constraint("PointOnObject", 0, 3, -2),
    Sketcher.Constraint("Diameter", 0, Q("6 mm")),
    Sketcher.Constraint("DistanceY", -1, 1, 0, 3, Q("26.5 mm")),
])
pocket15 = doc.addObject("PartDesign::Pocket", "Pocket014")
body.addObject(pocket15)
pocket15.Profile = sketch18
pocket15.Type = "ThroughAll"
pocket15.Reversed = True

# Sketch on XZ plane
sketch19 = doc.addObject("Sketcher::SketchObject", "Sketch018")
body.addObject(sketch19)
sketch19.AttachmentSupport = (doc.XZ_Plane, [""])
sketch19.MapMode = "FlatFace"
sketch19.AttachmentOffset = App.Placement(Vector(0, 0, -17), App.Rotation())
sketch19.addGeometry([
    Part.Circle(Vector(-15.5, 42, 0), Vector(0, 0, 1), 3),
    Part.Circle(Vector(-15.5, 42, 0), Vector(0, 0, 1), 1.7),
], False)
sketch19.addConstraint([
    Sketcher.Constraint("Coincident", 1, 3, 0, 3),
    Sketcher.Constraint("Diameter", 0, Q("6 mm")),
    Sketcher.Constraint("Diameter", 1, Q("3.4 mm")),
    Sketcher.Constraint("DistanceY", -1, 1, 0, 3, Q("42 mm")),
    Sketcher.Constraint("DistanceX", 0, 3, -1, 1, Q("15.5 mm")),
])
pocket16 = doc.addObject("PartDesign::Pocket", "Pocket015")
body.addObject(pocket16)
pocket16.Profile = sketch19
pocket16.Length = 4
pocket16.Reversed = True
doc.recompute()

datumline = doc.addObject("PartDesign::Line", "DatumLine")
body.addObject(datumline)
datumline.Placement = App.Placement(Vector(0, 0, 26.5), App.Rotation(Vector(0, 0, 1), Vector(0, 1, 0)))
polarpattern = doc.addObject("PartDesign::PolarPattern", "PolarPattern")
body.addObject(polarpattern)
polarpattern.Originals = [pocket12, pocket15, pocket16]
polarpattern.Axis = (datumline, [""])
polarpattern.Angle = 360
polarpattern.Occurrences = 4
body.Tip = polarpattern

# Sketch on XZ plane
sketch20 = doc.addObject("Sketcher::SketchObject", "Sketch019")
body.addObject(sketch20)
sketch20.AttachmentSupport = (doc.XZ_Plane, [""])
sketch20.MapMode = "FlatFace"
sketch20.addGeometry(Part.Circle(Vector(0, 26, 0), Vector(0, 0, 1), 8), False)
sketch20.addConstraint([
    Sketcher.Constraint("PointOnObject", 0, 3, -2),
    Sketcher.Constraint("Diameter", 0, Q("16 mm")),
    Sketcher.Constraint("DistanceY", -1, 1, 0, 3, Q("26.5 mm")),
])
pocket17 = doc.addObject("PartDesign::Pocket", "Pocket016")
body.addObject(pocket17)
pocket17.Profile = sketch20
pocket17.Length = 10

# Sketch on XZ plane
sketch21 = doc.addObject("Sketcher::SketchObject", "Sketch020")
body.addObject(sketch21)
sketch21.AttachmentSupport = (doc.XZ_Plane, [""])
sketch21.MapMode = "FlatFace"
sketch21.addGeometry(Part.Circle(Vector(0, 15, 0), Vector(0, 0, 1), 2.7), False)
sketch21.addConstraint([
    Sketcher.Constraint("PointOnObject", 0, 3, -2),
    Sketcher.Constraint("Diameter", 0, Q("5.4 mm")),
    Sketcher.Constraint("DistanceY", -1, 1, 0, 3, Q("15 mm")),
])
pad4 = doc.addObject("PartDesign::Pad", "Pad003")
body.addObject(pad4)
pad4.Profile = sketch21
pad4.Length = 17
pad4.Reversed = True

# Sketch on XZ plane
sketch22 = doc.addObject("Sketcher::SketchObject", "Sketch021")
body.addObject(sketch22)
sketch22.AttachmentSupport = (doc.XZ_Plane, [""])
sketch22.MapMode = "FlatFace"
sketch22.AttachmentOffset = App.Placement(Vector(0, 0, -17), App.Rotation())
sketch22.addGeometry(Part.Circle(Vector(0, 15, 0), Vector(0, 0, 1), 4.6), False)
sketch22.addConstraint([
    Sketcher.Constraint("PointOnObject", 0, 3, -2),
    Sketcher.Constraint("Diameter", 0, Q("9.2 mm")),
    Sketcher.Constraint("DistanceY", -1, 1, 0, 3, Q("15 mm")),
])
pad5 = doc.addObject("PartDesign::Pad", "Pad004")
body.addObject(pad5)
pad5.Profile = sketch22
pad5.Length = 3.75
doc.recompute()

polarpattern2 = doc.addObject("PartDesign::PolarPattern", "PolarPattern001")
body.addObject(polarpattern2)
polarpattern2.Originals = [pocket13, pocket14]
polarpattern2.Axis = (doc.Y_Axis, [""])
polarpattern2.Angle = 360
polarpattern2.Occurrences = 2
body.Tip = polarpattern2

# Sketch on XZ plane
sketch23 = doc.addObject("Sketcher::SketchObject", "Sketch022")
body.addObject(sketch23)
sketch23.AttachmentSupport = (doc.XZ_Plane, [""])
sketch23.MapMode = "FlatFace"
sketch23.addGeometry([
    Part.ArcOfCircle(Part.Circle(Vector(0, 0, 0), Vector(0, 0, 1), 50), math.radians(85.41), math.radians(94.59)),
    Part.LineSegment(Vector(4, 50, 0), Vector(4, 58, 0)),
    Part.LineSegment(Vector(4, 58, 0), Vector(-4, 58, 0)),
    Part.LineSegment(Vector(-4, 58, 0), Vector(-4, 50, 0)),
], False)
sketch23.addConstraint([
    Sketcher.Constraint("Coincident", 0, 1, 1, 1),
    Sketcher.Constraint("Coincident", 1, 2, 2, 1),
    Sketcher.Constraint("Coincident", 2, 2, 3, 1),
    Sketcher.Constraint("Coincident", 3, 2, 0, 2),
    Sketcher.Constraint("Vertical", 1),
    Sketcher.Constraint("Horizontal", 2),
    Sketcher.Constraint("Vertical", 3),
    Sketcher.Constraint("Coincident", 0, 3, -1, 1),
    Sketcher.Constraint("Horizontal", 0, 1, 3, 2),
    Sketcher.Constraint("DistanceX", 2, 2, 2, 1, Q("8 mm")),
    Sketcher.Constraint("Radius", 0, Q("50 mm")),
    Sketcher.Constraint("DistanceY", -1, 1, 1, 2, Q("58 mm")),
])
pad6 = doc.addObject("PartDesign::Pad", "Pad005")
body.addObject(pad6)
pad6.Profile = sketch23
pad6.Length = 17
pad6.Reversed = True
doc.recompute()

fillet3 = doc.addObject("PartDesign::Fillet", "Fillet002")
body.addObject(fillet3)
fillet3.Base = (pad6, edges_at(pad6, [
    (-4, 8.5, 58),
    (4, 8.5, 58),
    (-4, 8.5, 49.84),
    (4, 8.5, 49.84),
]))
fillet3.Radius = 2

# Sketch on XZ plane
sketch24 = doc.addObject("Sketcher::SketchObject", "Sketch023")
body.addObject(sketch24)
sketch24.AttachmentSupport = (doc.XZ_Plane, [""])
sketch24.MapMode = "FlatFace"
sketch24.addGeometry(Part.Circle(Vector(0, 0, 0), Vector(0, 0, 1), 4.1), False)
sketch24.addConstraint([
    Sketcher.Constraint("Coincident", 0, 3, -1, 1),
    Sketcher.Constraint("Diameter", 0, Q("8.2 mm")),
])
pocket18 = doc.addObject("PartDesign::Pocket", "Pocket017")
body.addObject(pocket18)
pocket18.Profile = sketch24
pocket18.Type = "ThroughAll"

doc.recompute()
